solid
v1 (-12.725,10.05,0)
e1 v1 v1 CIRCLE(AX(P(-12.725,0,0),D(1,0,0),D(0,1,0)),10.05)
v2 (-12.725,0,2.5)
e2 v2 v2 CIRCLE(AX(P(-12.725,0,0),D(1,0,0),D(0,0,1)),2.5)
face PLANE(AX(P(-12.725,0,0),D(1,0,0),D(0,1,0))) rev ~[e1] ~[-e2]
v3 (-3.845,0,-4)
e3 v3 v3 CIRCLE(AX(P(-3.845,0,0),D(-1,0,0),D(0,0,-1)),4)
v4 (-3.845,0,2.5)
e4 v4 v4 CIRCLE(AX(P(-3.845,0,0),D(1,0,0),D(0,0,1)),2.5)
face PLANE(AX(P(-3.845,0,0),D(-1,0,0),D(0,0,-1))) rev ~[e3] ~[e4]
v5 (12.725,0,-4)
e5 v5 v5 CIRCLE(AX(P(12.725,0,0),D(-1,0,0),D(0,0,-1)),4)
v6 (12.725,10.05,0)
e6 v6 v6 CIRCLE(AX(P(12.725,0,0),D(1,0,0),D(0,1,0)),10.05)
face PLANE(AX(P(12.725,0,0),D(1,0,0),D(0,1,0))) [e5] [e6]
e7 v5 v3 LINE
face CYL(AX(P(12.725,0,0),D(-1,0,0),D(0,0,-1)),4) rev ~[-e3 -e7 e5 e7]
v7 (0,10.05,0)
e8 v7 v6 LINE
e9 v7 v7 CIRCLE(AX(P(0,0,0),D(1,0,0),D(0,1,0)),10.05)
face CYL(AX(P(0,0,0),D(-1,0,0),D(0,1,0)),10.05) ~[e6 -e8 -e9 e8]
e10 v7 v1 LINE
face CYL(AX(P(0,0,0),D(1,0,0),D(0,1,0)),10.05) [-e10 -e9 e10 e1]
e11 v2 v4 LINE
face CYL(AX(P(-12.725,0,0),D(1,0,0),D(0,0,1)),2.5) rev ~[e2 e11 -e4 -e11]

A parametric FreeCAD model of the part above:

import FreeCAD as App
import Part
import Sketcher

doc = App.newDocument("Part")
body = doc.addObject("PartDesign::Body", "Body")

# Sketch on YZ plane
sketch1 = doc.addObject("Sketcher::SketchObject", "Sketch")
body.addObject(sketch1)
sketch1.AttachmentSupport = (doc.YZ_Plane, [""])
sketch1.MapMode = "FlatFace"
sketch1.addGeometry(Part.Circle(App.Vector(0, 0, 0), App.Vector(0, 0, 1), 10), False)
sketch1.addConstraint(Sketcher.Constraint("Coincident", 0, 3, -1, 1))
sketch1.addConstraint(Sketcher.Constraint("Diameter", 0, 20.1))
pad1 = doc.addObject("PartDesign::Pad", "Pad")
body.addObject(pad1)
pad1.Profile = sketch1
pad1.Length = 25.45
pad1.Midplane = True

# Sketch on YZ plane
sketch2 = doc.addObject("Sketcher::SketchObject", "Sketch001")
body.addObject(sketch2)
sketch2.AttachmentSupport = (doc.YZ_Plane, [""])
sketch2.MapMode = "FlatFace"
sketch2.AttachmentOffset = App.Placement(App.Vector(0, 0, 12.725), App.Rotation())
sketch2.addGeometry(Part.Circle(App.Vector(0, 0, 0), App.Vector(0, 0, 1), 4), False)
sketch2.addConstraint(Sketcher.Constraint("Coincident", 0, 3, -1, 1))
sketch2.addConstraint(Sketcher.Constraint("Diameter", 0, 8.0))
doc.recompute()
hole = doc.addObject("PartDesign::Hole", "Hole")
body.addObject(hole)
hole.Profile = sketch2
hole.ThreadType = "None"
hole.Diameter = 8
hole.DepthType = "Dimension"
hole.Depth = 16.57
hole.DrillPoint = "Flat"

# Sketch on YZ plane
sketch3 = doc.addObject("Sketcher::SketchObject", "Sketch002")
body.addObject(sketch3)
sketch3.AttachmentSupport = (doc.YZ_Plane, [""])
sketch3.MapMode = "FlatFace"
sketch3.AttachmentOffset = App.Placement(App.Vector(0, 0, -12.725), App.Rotation())
sketch3.addGeometry(Part.Circle(App.Vector(0, 0, 0), App.Vector(0, 0, 1), 2.5), False)
sketch3.addConstraint(Sketcher.Constraint("Coincident", 0, 3, -1, 1))
sketch3.addConstraint(Sketcher.Constraint("Diameter", 0, 5.0))
doc.recompute()
hole2 = doc.addObject("PartDesign::Hole", "Hole001")
body.addObject(hole2)
hole2.Profile = sketch3
hole2.ThreadType = "None"
hole2.Diameter = 5
hole2.DepthType = "ThroughAll"
hole2.Reversed = True

doc.recompute()
